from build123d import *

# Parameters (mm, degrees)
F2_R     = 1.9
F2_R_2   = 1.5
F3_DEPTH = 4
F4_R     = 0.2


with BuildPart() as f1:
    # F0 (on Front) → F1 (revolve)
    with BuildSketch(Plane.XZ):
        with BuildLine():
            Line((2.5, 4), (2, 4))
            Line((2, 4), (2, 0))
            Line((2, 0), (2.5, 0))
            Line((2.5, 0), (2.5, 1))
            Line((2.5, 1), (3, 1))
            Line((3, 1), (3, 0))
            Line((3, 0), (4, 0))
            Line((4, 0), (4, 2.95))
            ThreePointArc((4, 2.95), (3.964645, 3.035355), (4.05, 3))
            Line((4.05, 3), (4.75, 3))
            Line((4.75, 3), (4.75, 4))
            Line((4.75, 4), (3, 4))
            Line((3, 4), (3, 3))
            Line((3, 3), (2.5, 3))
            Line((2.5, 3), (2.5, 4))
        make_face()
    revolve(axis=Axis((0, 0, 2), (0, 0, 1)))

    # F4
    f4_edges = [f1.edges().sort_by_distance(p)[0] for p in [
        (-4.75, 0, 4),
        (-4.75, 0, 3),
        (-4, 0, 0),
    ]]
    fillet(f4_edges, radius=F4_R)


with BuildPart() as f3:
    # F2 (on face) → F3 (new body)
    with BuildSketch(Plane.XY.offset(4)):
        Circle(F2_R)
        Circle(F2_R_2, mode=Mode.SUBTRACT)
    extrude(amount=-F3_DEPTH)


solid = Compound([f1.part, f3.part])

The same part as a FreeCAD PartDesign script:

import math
import FreeCAD as App
import Part
import Sketcher


def edges_at(feature, points):
    """Names of the edges that pass closest to the given points."""
    edges = feature.Shape.Edges
    near = lambda p: min(range(len(edges)), key=lambda i: edges[i].distToShape(Part.Vertex(*p))[0])
    return sorted({f"Edge{near(p) + 1}" for p in points})

doc = App.newDocument("Part")
body = doc.addObject("PartDesign::Body", "Body")

# Sketch on XZ plane
sketch1 = body.newObject("Sketcher::SketchObject", "Sketch")
sketch1.AttachmentSupport = (doc.getObject("XZ_Plane"), [""])
sketch1.MapMode = "FlatFace"
sketch1.addGeometry([
    Part.LineSegment(App.Vector(2.5, 4, 0), App.Vector(2, 4, 0)),  # 0
    Part.LineSegment(App.Vector(2, 4, 0), App.Vector(2, 0, 0)),  # 1
    Part.LineSegment(App.Vector(2, 0, 0), App.Vector(2.5, 0, 0)),  # 2
    Part.LineSegment(App.Vector(2.5, 0, 0), App.Vector(2.5, 1, 0)),  # 3
    Part.LineSegment(App.Vector(2.5, 1, 0), App.Vector(3, 1, 0)),  # 4
    Part.LineSegment(App.Vector(3, 1, 0), App.Vector(3, 0, 0)),  # 5
    Part.LineSegment(App.Vector(3, 0, 0), App.Vector(4, 0, 0)),  # 6
    Part.LineSegment(App.Vector(4, 0, 0), App.Vector(4, 2.95, 0)),  # 7
    Part.ArcOfCircle(Part.Circle(App.Vector(4, 3, 0), App.Vector(0, 0, 1), 0.05), math.radians(0.000228), math.radians(269.999772)),  # 8
    Part.LineSegment(App.Vector(4.05, 3, 0), App.Vector(4.75, 3, 0)),  # 9
    Part.LineSegment(App.Vector(4.75, 3, 0), App.Vector(4.75, 4, 0)),  # 10
    Part.LineSegment(App.Vector(4.75, 4, 0), App.Vector(3, 4, 0)),  # 11
    Part.LineSegment(App.Vector(3, 4, 0), App.Vector(3, 3, 0)),  # 12
    Part.LineSegment(App.Vector(3, 3, 0), App.Vector(2.5, 3, 0)),  # 13
    Part.LineSegment(App.Vector(2.5, 3, 0), App.Vector(2.5, 4, 0)),  # 14
], False)
sketch1.addConstraint([
    Sketcher.Constraint("Coincident", 0, 2, 1, 1),
    Sketcher.Constraint("Coincident", 1, 2, 2, 1),
    Sketcher.Constraint("Coincident", 2, 2, 3, 1),
    Sketcher.Constraint("Coincident", 3, 2, 4, 1),
    Sketcher.Constraint("Coincident", 4, 2, 5, 1),
    Sketcher.Constraint("Coincident", 5, 2, 6, 1),
    Sketcher.Constraint("Coincident", 6, 2, 7, 1),
    Sketcher.Constraint("Coincident", 7, 2, 8, 2),
    Sketcher.Constraint("Coincident", 8, 1, 9, 1),
    Sketcher.Constraint("Coincident", 9, 2, 10, 1),
    Sketcher.Constraint("Coincident", 10, 2, 11, 1),
    Sketcher.Constraint("Coincident", 11, 2, 12, 1),
    Sketcher.Constraint("Coincident", 12, 2, 13, 1),
    Sketcher.Constraint("Coincident", 13, 2, 14, 1),
    Sketcher.Constraint("Coincident", 14, 2, 0, 1),
    Sketcher.Constraint("Horizontal", 0),
    Sketcher.Constraint("Vertical", 1),
    Sketcher.Constraint("Horizontal", 2),
    Sketcher.Constraint("Vertical", 3),
    Sketcher.Constraint("Horizontal", 4),
    Sketcher.Constraint("Vertical", 5),
    Sketcher.Constraint("Horizontal", 6),
    Sketcher.Constraint("Vertical", 7),
    Sketcher.Constraint("Horizontal", 9),
    Sketcher.Constraint("Vertical", 10),
    Sketcher.Constraint("Horizontal", 11),
    Sketcher.Constraint("Vertical", 12),
    Sketcher.Constraint("Horizontal", 13),
    Sketcher.Constraint("Vertical", 14),
    Sketcher.Constraint("PointOnObject", 1, 2, -1),
    Sketcher.Constraint("PointOnObject", 5, 2, -1),
    Sketcher.Constraint("Horizontal", 0, 2, 10, 2),
    Sketcher.Constraint("Horizontal", 9, 2, 12, 2),
    Sketcher.Constraint("Vertical", 8, 3, 6, 2),
    Sketcher.Constraint("Vertical", 5, 2, 11, 2),
    Sketcher.Constraint("Vertical", 3, 2, 13, 2),
    Sketcher.Constraint("Equal", 2, 4),
    Sketcher.Constraint("Equal", 6, 3),
    Sketcher.Constraint("Equal", 5, 10),
    Sketcher.Constraint("DistanceX", 6, 1, 6, 2, 1.0),
    Sketcher.Constraint("DistanceY", 1, 2, 1, 1, 4.0),
    Sketcher.Constraint("Radius", 8, 0.05),
    Sketcher.Constraint("DistanceX", 0, 2, 0, 1, 0.5),
    Sketcher.Constraint("DistanceX", 9, 1, 9, 2, 0.7),
    Sketcher.Constraint("DistanceX", -1, 1, 8, 3, 4.0),
    Sketcher.Constraint("DistanceY", -1, 1, 8, 3, 3.0),
])
revolution = body.newObject("PartDesign::Revolution", "Revolution")
revolution.Profile = sketch1
revolution.ReferenceAxis = (sketch1, ["V_Axis"])
revolution.Angle = 360
doc.recompute()

fillet = body.newObject("PartDesign::Fillet", "Fillet")
fillet.Base = (revolution, edges_at(revolution, [(-4.75, 0, 4), (-4.75, 0, 3), (-4, 0, 0)]))
fillet.Radius = 0.2
body2 = doc.addObject("PartDesign::Body", "Body001")

# Sketch on XY plane
sketch2 = body2.newObject("Sketcher::SketchObject", "Sketch001")
sketch2.AttachmentSupport = (doc.getObject("XY_Plane001"), [""])
sketch2.MapMode = "FlatFace"
sketch2.AttachmentOffset = App.Placement(App.Vector(0, 0, 4), App.Rotation())
sketch2.addGeometry([
    Part.Circle(App.Vector(0, 0, 0), App.Vector(0, 0, 1), 1.9),
    Part.Circle(App.Vector(0, 0, 0), App.Vector(0, 0, 1), 1.5),
], False)
sketch2.addConstraint([
    Sketcher.Constraint("Coincident", 0, 3, -1, 1),
    Sketcher.Constraint("Coincident", 1, 3, -1, 1),
    Sketcher.Constraint("Diameter", 1, 3.0),
    Sketcher.Constraint("Diameter", 0, 3.8),
])
pad1 = body2.newObject("PartDesign::Pad", "Pad")
pad1.Profile = sketch2
pad1.Length = 4
pad1.Reversed = True

doc.recompute()
